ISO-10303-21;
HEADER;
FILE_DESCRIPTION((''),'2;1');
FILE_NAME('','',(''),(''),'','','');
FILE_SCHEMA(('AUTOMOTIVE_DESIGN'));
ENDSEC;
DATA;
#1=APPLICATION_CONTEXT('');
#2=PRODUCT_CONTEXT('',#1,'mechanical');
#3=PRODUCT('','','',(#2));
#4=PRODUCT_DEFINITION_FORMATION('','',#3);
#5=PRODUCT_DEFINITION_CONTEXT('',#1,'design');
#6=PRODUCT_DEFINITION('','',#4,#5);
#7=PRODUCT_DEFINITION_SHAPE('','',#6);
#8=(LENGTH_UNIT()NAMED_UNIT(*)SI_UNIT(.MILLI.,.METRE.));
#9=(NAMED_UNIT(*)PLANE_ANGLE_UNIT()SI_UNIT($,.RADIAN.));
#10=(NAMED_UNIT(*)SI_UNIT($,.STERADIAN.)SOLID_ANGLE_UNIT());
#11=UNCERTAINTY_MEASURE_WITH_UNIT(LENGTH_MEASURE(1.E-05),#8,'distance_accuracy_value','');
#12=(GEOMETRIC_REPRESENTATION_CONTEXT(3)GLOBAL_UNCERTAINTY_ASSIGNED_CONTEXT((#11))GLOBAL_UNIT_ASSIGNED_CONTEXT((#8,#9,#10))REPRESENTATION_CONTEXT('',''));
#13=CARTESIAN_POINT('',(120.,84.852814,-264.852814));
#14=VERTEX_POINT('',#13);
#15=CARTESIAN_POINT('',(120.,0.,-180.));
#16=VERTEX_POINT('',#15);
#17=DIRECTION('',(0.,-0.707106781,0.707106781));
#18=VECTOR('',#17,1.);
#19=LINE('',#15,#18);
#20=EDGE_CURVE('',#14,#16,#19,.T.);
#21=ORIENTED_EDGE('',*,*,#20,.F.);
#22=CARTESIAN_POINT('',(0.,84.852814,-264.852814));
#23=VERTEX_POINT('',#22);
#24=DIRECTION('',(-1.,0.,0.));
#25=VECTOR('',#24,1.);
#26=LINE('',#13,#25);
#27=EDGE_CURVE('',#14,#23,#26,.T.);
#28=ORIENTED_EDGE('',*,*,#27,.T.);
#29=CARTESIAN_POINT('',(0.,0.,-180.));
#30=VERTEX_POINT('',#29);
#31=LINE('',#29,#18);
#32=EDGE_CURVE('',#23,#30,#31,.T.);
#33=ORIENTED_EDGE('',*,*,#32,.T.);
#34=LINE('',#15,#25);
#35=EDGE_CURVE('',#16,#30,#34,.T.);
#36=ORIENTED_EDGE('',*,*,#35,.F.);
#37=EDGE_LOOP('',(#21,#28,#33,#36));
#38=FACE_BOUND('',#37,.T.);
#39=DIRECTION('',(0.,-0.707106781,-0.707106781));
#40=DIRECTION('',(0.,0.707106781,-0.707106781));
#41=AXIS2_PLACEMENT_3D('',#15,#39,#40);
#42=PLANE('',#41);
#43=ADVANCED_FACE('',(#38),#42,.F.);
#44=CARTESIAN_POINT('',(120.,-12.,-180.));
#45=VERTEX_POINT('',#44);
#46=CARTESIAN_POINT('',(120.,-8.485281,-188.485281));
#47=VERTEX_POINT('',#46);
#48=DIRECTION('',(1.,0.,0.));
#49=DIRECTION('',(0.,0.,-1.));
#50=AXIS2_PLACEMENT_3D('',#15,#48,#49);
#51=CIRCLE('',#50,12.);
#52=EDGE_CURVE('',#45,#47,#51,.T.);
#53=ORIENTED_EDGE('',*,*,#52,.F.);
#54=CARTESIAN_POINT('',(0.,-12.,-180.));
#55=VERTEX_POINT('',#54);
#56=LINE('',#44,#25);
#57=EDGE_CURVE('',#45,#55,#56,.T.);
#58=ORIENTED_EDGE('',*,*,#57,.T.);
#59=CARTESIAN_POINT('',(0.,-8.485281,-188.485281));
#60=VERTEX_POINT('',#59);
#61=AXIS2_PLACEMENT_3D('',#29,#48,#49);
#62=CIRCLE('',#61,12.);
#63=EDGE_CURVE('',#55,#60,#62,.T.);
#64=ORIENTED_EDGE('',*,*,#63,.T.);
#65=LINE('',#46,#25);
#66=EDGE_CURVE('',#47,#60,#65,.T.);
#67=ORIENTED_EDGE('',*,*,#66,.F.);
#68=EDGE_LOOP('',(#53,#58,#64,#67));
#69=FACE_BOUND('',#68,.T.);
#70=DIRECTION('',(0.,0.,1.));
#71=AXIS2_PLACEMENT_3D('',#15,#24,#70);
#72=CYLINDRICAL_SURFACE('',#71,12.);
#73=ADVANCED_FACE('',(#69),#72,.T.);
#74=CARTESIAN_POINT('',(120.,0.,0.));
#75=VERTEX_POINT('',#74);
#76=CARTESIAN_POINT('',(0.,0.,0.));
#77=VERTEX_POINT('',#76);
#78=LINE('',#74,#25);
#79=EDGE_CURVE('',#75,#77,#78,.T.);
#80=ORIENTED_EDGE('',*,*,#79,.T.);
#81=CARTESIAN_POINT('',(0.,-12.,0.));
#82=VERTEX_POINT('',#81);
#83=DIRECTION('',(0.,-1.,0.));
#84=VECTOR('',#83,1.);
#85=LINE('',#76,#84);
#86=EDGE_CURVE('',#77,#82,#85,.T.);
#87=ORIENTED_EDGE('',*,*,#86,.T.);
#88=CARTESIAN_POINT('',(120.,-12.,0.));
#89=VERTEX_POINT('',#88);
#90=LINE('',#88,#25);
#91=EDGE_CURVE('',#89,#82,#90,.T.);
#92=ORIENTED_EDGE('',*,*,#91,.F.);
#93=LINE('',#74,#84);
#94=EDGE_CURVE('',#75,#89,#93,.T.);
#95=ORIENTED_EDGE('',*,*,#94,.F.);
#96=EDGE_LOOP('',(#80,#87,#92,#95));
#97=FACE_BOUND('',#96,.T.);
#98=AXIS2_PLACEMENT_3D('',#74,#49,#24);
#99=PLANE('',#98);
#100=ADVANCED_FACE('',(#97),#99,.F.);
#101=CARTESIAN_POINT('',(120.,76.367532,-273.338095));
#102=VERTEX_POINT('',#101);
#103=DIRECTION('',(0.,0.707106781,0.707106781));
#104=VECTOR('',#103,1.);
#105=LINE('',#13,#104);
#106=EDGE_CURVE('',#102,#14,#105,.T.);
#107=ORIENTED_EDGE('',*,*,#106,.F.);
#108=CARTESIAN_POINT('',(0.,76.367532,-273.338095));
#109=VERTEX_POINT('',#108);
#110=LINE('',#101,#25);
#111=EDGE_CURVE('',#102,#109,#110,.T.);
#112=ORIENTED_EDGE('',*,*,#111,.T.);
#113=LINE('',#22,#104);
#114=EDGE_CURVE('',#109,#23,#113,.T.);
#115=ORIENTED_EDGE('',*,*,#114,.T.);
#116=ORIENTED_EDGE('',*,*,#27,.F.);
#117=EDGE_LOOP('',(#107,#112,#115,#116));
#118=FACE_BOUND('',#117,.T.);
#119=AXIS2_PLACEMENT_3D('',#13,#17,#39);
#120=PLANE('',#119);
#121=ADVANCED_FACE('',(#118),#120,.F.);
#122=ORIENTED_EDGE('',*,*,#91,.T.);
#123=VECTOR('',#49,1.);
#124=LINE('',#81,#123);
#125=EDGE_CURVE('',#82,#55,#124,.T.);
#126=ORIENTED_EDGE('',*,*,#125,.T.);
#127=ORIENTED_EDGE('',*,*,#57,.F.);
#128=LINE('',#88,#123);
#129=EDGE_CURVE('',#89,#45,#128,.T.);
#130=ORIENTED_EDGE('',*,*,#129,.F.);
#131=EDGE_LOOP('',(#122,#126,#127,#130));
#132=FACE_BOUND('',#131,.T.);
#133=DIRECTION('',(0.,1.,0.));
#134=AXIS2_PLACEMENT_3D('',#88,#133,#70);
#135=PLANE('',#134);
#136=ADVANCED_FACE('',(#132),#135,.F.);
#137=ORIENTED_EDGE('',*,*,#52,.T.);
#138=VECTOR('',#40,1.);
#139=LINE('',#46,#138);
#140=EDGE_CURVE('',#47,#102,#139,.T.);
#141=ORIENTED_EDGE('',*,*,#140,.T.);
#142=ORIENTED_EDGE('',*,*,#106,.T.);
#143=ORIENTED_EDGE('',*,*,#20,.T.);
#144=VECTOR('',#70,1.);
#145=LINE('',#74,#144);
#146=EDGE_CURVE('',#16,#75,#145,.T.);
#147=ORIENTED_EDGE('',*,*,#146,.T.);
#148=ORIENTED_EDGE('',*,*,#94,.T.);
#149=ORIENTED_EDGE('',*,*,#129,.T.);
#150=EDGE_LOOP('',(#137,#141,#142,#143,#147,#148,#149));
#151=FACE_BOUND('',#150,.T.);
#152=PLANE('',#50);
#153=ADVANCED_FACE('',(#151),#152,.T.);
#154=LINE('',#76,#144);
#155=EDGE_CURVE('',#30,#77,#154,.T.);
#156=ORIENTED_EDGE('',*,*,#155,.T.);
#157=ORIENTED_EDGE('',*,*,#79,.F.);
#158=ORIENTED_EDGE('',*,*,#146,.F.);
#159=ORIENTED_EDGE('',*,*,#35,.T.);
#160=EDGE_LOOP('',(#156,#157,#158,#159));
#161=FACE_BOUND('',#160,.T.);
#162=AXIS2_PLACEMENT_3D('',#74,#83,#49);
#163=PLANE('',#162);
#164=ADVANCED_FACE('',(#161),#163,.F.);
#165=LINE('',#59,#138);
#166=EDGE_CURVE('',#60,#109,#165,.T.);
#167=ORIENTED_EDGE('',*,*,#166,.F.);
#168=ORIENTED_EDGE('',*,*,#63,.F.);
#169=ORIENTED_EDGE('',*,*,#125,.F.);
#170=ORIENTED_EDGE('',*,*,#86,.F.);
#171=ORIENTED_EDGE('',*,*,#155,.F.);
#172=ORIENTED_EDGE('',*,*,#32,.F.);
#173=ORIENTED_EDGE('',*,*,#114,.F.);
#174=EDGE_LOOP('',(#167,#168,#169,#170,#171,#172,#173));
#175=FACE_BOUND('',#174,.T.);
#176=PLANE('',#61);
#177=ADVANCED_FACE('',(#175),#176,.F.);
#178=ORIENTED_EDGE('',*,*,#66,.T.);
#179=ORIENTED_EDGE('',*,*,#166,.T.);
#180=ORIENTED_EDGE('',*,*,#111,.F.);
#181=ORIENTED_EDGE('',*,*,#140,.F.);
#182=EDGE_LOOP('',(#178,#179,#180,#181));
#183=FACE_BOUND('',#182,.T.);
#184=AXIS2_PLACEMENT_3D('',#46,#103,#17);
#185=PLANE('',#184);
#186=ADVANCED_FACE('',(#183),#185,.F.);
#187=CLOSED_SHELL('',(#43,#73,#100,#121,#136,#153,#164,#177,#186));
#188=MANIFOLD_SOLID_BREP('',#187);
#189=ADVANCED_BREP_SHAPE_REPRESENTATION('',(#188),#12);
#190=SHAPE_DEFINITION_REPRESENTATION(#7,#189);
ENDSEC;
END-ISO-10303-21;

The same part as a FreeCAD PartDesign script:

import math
import FreeCAD as App
import Part
import Sketcher
Q = App.Units.Quantity

doc = App.newDocument("Part")
body = doc.addObject("PartDesign::Body", "Body")

# Sketch on YZ plane
sketch1 = doc.addObject("Sketcher::SketchObject", "Sketch")
body.addObject(sketch1)
sketch1.AttachmentSupport = (doc.YZ_Plane, [""])
sketch1.MapMode = "FlatFace"
sketch1.addGeometry(Part.LineSegment(App.Vector(0, -180, 0), App.Vector(0, 0, 0)), False)
sketch1.addGeometry(Part.LineSegment(App.Vector(0, 0, 0), App.Vector(-12, 0, 0)), False)
sketch1.addGeometry(Part.LineSegment(App.Vector(-12, 0, 0), App.Vector(-12, -180, 0)), False)
sketch1.addGeometry(Part.ArcOfCircle(Part.Circle(App.Vector(0, -180, 0), App.Vector(0, 0, 1), 12), math.radians(-180), math.radians(-135)), False)
sketch1.addGeometry(Part.LineSegment(App.Vector(-8, -188, 0), App.Vector(76, -273, 0)), False)
sketch1.addGeometry(Part.LineSegment(App.Vector(76, -273, 0), App.Vector(85, -265, 0)), False)
sketch1.addGeometry(Part.LineSegment(App.Vector(85, -265, 0), App.Vector(0, -180, 0)), False)
sketch1.addConstraint(Sketcher.Constraint("Coincident", 0, 2, 1, 1))
sketch1.addConstraint(Sketcher.Constraint("Coincident", 1, 2, 2, 1))
sketch1.addConstraint(Sketcher.Constraint("Tangent", 2, 2, 3, 1))
sketch1.addConstraint(Sketcher.Constraint("Tangent", 3, 2, 4, 1))
sketch1.addConstraint(Sketcher.Constraint("Coincident", 4, 2, 5, 1))
sketch1.addConstraint(Sketcher.Constraint("Coincident", 5, 2, 6, 1))
sketch1.addConstraint(Sketcher.Constraint("Coincident", 6, 2, 0, 1))
sketch1.addConstraint(Sketcher.Constraint("Vertical", 0))
sketch1.addConstraint(Sketcher.Constraint("Horizontal", 1))
sketch1.addConstraint(Sketcher.Constraint("Vertical", 2))
sketch1.addConstraint(Sketcher.Constraint("Coincident", 0, 2, -1, 1))
sketch1.addConstraint(Sketcher.Constraint("Coincident", 6, 2, 3, 3))
sketch1.addConstraint(Sketcher.Constraint("Perpendicular", 4, 5))
sketch1.addConstraint(Sketcher.Constraint("Perpendicular", 5, 6))
sketch1.addConstraint(Sketcher.Constraint("Radius", 3, Q("12 mm")))
sketch1.addConstraint(Sketcher.Constraint("DistanceY", 0, 1, 0, 2, Q("180 mm")))
sketch1.addConstraint(Sketcher.Constraint("Angle", 4, Q("-45 deg")))
sketch1.addConstraint(Sketcher.Constraint("Distance", 4, Q("120 mm")))
pad1 = doc.addObject("PartDesign::Pad", "Pad")
body.addObject(pad1)
pad1.Profile = sketch1
pad1.Length = 120

doc.recompute()
